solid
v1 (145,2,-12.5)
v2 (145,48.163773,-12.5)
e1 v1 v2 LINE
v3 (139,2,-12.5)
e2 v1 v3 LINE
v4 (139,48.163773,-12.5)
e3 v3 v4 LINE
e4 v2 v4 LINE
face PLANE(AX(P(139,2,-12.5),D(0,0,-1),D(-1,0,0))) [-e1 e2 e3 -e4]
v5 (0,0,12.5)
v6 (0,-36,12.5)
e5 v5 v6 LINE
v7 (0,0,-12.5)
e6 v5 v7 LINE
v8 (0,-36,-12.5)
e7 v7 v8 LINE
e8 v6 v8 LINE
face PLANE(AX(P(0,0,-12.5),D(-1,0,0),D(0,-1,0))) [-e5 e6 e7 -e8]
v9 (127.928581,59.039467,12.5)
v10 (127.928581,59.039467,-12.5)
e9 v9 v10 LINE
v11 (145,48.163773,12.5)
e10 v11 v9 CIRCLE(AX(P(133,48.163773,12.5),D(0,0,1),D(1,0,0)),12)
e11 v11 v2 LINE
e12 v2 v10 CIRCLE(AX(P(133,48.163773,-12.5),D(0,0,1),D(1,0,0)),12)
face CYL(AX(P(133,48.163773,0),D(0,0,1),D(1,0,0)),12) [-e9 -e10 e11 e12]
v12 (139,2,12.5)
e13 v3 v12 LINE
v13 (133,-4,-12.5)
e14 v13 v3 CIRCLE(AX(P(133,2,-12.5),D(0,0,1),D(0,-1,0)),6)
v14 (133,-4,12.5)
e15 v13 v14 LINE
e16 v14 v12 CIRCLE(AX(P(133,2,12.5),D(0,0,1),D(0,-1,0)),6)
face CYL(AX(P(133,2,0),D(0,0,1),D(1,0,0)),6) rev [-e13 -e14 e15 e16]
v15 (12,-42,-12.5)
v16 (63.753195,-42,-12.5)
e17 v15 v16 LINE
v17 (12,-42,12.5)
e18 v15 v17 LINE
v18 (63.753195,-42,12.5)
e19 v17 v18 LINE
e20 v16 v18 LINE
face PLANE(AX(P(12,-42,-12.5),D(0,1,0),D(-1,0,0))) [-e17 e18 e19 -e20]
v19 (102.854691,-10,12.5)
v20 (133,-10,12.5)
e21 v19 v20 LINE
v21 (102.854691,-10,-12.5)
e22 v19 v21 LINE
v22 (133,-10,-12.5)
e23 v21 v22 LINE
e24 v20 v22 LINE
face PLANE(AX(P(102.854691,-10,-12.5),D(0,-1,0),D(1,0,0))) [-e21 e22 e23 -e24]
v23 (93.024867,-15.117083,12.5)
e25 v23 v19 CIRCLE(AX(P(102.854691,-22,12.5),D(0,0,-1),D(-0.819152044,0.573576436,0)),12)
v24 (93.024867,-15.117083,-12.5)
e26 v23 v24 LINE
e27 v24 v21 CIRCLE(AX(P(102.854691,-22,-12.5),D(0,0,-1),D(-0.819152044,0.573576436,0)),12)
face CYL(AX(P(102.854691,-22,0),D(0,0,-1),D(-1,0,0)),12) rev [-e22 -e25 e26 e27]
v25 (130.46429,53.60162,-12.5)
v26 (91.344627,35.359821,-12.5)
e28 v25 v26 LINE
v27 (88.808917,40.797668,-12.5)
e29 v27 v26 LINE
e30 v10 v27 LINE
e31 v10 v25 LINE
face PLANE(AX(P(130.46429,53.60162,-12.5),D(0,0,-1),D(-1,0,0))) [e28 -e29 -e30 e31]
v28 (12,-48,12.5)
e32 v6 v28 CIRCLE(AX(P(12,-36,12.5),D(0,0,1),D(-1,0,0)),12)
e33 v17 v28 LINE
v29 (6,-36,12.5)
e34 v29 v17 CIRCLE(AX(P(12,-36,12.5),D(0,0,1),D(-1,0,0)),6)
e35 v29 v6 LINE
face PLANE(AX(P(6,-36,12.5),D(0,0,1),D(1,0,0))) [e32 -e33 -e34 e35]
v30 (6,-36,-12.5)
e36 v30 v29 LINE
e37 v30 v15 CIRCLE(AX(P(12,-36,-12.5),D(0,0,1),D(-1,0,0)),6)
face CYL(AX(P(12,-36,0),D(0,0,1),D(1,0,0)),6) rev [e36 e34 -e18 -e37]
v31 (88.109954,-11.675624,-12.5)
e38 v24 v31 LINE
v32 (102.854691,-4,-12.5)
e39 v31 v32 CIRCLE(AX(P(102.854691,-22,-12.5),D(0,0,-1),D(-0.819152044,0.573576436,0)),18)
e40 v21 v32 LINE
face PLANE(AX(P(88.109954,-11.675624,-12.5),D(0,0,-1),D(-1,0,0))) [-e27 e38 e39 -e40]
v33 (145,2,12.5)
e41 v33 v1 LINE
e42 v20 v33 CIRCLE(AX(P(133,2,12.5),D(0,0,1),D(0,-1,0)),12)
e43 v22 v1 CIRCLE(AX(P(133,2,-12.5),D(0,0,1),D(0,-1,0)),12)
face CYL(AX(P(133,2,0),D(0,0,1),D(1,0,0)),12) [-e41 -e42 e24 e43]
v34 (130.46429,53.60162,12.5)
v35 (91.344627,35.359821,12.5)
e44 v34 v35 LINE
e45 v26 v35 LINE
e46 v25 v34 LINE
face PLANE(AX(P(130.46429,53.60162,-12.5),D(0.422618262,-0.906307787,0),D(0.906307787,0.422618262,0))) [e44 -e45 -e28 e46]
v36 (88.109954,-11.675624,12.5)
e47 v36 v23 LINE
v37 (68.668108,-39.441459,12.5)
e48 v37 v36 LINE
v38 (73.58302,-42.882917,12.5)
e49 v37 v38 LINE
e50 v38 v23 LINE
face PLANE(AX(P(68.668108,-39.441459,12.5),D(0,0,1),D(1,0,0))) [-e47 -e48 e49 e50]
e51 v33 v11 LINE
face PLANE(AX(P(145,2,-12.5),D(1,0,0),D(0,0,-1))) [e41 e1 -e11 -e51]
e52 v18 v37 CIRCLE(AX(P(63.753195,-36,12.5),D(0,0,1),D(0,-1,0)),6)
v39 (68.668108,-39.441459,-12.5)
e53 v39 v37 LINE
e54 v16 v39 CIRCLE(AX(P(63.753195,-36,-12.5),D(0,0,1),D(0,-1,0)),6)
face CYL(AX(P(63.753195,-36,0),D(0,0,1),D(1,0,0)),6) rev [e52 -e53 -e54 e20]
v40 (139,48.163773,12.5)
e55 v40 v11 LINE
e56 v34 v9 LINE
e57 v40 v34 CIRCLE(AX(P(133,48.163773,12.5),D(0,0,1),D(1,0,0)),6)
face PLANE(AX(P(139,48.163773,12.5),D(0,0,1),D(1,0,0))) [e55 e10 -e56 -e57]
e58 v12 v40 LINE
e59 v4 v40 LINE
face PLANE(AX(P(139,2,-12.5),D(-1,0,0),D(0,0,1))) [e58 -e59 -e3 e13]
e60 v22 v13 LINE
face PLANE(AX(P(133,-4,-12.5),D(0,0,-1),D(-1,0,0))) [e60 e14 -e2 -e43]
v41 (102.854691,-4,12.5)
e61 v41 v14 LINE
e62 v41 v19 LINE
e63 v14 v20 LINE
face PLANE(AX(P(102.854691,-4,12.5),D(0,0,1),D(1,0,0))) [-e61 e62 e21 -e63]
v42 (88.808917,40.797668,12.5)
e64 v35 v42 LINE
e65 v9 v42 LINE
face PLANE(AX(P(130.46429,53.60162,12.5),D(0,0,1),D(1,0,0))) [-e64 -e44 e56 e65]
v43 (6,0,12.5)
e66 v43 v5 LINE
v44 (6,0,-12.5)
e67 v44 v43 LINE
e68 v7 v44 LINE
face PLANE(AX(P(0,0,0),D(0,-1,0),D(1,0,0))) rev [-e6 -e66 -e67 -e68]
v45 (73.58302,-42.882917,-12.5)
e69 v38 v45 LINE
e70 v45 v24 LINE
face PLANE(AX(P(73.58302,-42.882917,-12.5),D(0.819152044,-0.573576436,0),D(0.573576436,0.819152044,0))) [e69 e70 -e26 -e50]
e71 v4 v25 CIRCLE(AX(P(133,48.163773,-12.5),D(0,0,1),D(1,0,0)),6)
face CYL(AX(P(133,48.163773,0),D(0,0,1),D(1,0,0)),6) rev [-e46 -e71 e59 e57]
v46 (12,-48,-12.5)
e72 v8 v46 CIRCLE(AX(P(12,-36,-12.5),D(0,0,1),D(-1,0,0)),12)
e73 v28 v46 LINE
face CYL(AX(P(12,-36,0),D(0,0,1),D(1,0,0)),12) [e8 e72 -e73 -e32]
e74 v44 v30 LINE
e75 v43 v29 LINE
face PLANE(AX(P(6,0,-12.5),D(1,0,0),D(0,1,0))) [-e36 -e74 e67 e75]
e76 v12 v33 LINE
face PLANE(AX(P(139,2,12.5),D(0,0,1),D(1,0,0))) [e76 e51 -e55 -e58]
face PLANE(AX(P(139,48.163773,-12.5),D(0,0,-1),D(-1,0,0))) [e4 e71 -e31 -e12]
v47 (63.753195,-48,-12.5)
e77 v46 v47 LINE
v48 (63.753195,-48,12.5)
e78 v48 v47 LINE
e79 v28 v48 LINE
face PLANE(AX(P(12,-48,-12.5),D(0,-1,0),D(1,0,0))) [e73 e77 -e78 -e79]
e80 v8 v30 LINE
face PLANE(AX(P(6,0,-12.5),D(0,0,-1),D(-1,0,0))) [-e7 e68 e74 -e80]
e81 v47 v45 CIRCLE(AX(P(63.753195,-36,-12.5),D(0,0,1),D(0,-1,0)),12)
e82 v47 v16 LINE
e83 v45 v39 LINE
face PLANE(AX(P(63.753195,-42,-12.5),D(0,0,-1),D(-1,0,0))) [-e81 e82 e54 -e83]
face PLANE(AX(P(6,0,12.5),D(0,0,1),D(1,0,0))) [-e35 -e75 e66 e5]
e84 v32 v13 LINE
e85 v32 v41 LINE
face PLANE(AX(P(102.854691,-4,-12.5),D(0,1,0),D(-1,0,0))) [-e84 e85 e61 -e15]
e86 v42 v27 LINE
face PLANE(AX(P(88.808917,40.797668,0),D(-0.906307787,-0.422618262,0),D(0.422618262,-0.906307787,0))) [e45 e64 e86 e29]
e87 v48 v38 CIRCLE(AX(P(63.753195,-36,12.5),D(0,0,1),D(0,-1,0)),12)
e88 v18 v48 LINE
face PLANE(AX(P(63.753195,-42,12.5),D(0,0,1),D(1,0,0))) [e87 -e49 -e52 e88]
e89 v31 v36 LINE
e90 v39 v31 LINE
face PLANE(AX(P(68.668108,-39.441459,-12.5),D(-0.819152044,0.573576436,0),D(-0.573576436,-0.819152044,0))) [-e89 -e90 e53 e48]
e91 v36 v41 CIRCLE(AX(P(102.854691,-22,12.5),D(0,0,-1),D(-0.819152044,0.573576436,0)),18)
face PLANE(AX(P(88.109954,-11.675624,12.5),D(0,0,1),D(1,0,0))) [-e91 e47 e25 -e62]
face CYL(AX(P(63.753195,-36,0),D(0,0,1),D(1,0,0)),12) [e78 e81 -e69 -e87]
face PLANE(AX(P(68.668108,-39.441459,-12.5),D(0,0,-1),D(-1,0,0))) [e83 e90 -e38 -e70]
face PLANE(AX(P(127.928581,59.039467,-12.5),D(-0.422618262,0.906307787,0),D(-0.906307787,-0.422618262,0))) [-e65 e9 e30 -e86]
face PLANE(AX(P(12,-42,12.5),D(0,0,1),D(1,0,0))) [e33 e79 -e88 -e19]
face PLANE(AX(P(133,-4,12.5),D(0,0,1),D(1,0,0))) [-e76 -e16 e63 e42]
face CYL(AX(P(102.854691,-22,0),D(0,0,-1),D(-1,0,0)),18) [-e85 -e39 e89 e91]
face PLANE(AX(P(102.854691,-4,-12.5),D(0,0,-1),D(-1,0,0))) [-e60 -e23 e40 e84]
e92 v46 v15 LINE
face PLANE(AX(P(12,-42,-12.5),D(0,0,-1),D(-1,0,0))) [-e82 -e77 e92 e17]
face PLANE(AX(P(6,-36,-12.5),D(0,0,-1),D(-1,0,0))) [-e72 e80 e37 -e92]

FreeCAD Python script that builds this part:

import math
import FreeCAD as App
import Part
import Sketcher
from FreeCAD import Vector
Q = App.Units.Quantity

doc = App.newDocument("Part")
body = doc.addObject("PartDesign::Body", "Body")

sketch1 = body.newObject("Sketcher::SketchObject", "Sketch")
sketch1.AttachmentSupport = (doc.getObject("XZ_Plane"), [""])
sketch1.MapMode = "FlatFace"
sketch1.addGeometry([
    Part.LineSegment(Vector(6, -12, 0), Vector(6, 12, 0)),
    Part.LineSegment(Vector(6, 12, 0), Vector(0, 12, 0)),
    Part.LineSegment(Vector(0, 12, 0), Vector(0, -12, 0)),
    Part.LineSegment(Vector(0, -12, 0), Vector(6, -12, 0)),
], False)
sketch1.addConstraint([
    Sketcher.Constraint("Coincident", 0, 2, 1, 1),
    Sketcher.Constraint("Coincident", 1, 2, 2, 1),
    Sketcher.Constraint("Coincident", 2, 2, 3, 1),
    Sketcher.Constraint("Coincident", 3, 2, 0, 1),
    Sketcher.Constraint("Vertical", 0),
    Sketcher.Constraint("Horizontal", 1),
    Sketcher.Constraint("Vertical", 2),
    Sketcher.Constraint("Horizontal", 3),
    Sketcher.Constraint("Symmetric", 1, 2, 2, 2, -1, 1),
    Sketcher.Constraint("DistanceX", 1, 2, 1, 1, Q("6 mm")),
    Sketcher.Constraint("DistanceY", 0, 1, 0, 2, Q("25 mm")),
])

sketch2 = body.newObject("Sketcher::SketchObject", "Sketch001")
sketch2.AttachmentSupport = (doc.getObject("XY_Plane"), [""])
sketch2.MapMode = "FlatFace"
sketch2.addGeometry([
    Part.LineSegment(Vector(0, 0, 0), Vector(0, -36, 0)),
    Part.ArcOfCircle(Part.Circle(Vector(12, -36, 0), Vector(0, 0, 1), 12), math.radians(-180), math.radians(-90)),
    Part.LineSegment(Vector(12, -48, 0), Vector(64, -48, 0)),
    Part.ArcOfCircle(Part.Circle(Vector(64, -36, 0), Vector(0, 0, 1), 12), math.radians(-90), math.radians(-35)),
    Part.LineSegment(Vector(74, -43, 0), Vector(93, -15, 0)),
    Part.ArcOfCircle(Part.Circle(Vector(103, -22, 0), Vector(0, 0, 1), 12), math.radians(90), math.radians(145)),
    Part.LineSegment(Vector(103, -10, 0), Vector(133, -10, 0)),
    Part.ArcOfCircle(Part.Circle(Vector(133, 2, 0), Vector(0, 0, 1), 12), math.radians(-90), math.radians(0)),
    Part.LineSegment(Vector(145, 2, 0), Vector(145, 48, 0)),
    Part.ArcOfCircle(Part.Circle(Vector(133, 48, 0), Vector(0, 0, 1), 12), math.radians(0), math.radians(115)),
    Part.LineSegment(Vector(128, 59, 0), Vector(89, 41, 0)),
], False)
sketch2.addConstraint([
    Sketcher.Constraint("Tangent", 0, 2, 1, 1),
    Sketcher.Constraint("Tangent", 1, 2, 2, 1),
    Sketcher.Constraint("Tangent", 2, 2, 3, 1),
    Sketcher.Constraint("Tangent", 3, 2, 4, 1),
    Sketcher.Constraint("Tangent", 4, 2, 5, 2),
    Sketcher.Constraint("Tangent", 5, 1, 6, 1),
    Sketcher.Constraint("Tangent", 6, 2, 7, 1),
    Sketcher.Constraint("Tangent", 7, 2, 8, 1),
    Sketcher.Constraint("Tangent", 8, 2, 9, 1),
    Sketcher.Constraint("Tangent", 9, 2, 10, 1),
    Sketcher.Constraint("Vertical", 0),
    Sketcher.Constraint("Horizontal", 2),
    Sketcher.Constraint("Horizontal", 6),
    Sketcher.Constraint("Vertical", 8),
    Sketcher.Constraint("Coincident", 0, 1, -1, 1),
    Sketcher.Constraint("Equal", 1, 3),
    Sketcher.Constraint("Equal", 3, 5),
    Sketcher.Constraint("Equal", 5, 7),
    Sketcher.Constraint("Equal", 7, 9),
    Sketcher.Constraint("Radius", 1, Q("12 mm")),
    Sketcher.Constraint("DistanceY", 0, 2, 0, 1, Q("36 mm")),
    Sketcher.Constraint("Angle", 4, Q("55 deg")),
    Sketcher.Constraint("Angle", 10, Q("-155 deg")),
    Sketcher.Constraint("DistanceY", 5, 3, -1, 1, Q("22 mm")),
    Sketcher.Constraint("DistanceX", -1, 1, 7, 3, Q("133 mm")),
    Sketcher.Constraint("DistanceX", 6, 1, 6, 2, Q("30.145309 mm")),
    Sketcher.Constraint("DistanceY", 10, 2, 9, 2, Q("18.241799 mm")),
    Sketcher.Constraint("DistanceY", 8, 1, 8, 2, Q("46.163773 mm")),
])
doc.recompute()

additivepipe = body.newObject("PartDesign::AdditivePipe", "AdditivePipe")
additivepipe.Profile = sketch1
additivepipe.Spine = (sketch2, ["Edge1", "Edge2", "Edge3", "Edge4", "Edge5", "Edge6", "Edge7", "Edge8", "Edge9", "Edge10", "Edge11"])

doc.recompute()
